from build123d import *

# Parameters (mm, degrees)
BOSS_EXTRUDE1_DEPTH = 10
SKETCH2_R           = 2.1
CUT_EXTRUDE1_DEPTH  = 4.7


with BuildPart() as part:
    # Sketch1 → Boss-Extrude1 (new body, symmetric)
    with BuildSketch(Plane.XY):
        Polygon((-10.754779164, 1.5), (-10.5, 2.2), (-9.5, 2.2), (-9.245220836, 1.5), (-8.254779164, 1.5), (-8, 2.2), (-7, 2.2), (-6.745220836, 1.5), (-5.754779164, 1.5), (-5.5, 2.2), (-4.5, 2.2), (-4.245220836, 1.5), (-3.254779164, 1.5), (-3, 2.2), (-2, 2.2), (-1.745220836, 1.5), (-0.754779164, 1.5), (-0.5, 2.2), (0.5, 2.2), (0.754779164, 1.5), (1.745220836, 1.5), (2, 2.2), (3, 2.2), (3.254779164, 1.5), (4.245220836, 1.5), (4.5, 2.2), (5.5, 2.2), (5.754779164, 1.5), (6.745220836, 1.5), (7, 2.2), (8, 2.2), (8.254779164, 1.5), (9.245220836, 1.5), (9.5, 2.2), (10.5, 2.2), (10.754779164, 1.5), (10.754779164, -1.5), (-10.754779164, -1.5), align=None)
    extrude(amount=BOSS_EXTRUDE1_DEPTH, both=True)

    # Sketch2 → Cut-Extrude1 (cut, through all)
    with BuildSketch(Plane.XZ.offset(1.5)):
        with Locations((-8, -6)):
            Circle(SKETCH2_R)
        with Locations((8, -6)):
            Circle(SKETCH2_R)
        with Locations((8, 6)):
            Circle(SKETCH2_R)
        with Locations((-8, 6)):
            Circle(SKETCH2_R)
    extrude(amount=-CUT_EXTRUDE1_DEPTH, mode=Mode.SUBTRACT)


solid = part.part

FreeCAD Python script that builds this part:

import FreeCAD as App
import Part
import Sketcher
Q = App.Units.Quantity

doc = App.newDocument("Part")
params = doc.addObject("Spreadsheet::Sheet", "Params")
for row, (alias, value) in enumerate([
    ("sketch1_width", "1 mm"),
    ("sketch1_height", "3 mm"),
    ("pad1_length", "20 mm"),
    ("sketch2_diameter", "4.2 mm"),
], start=1):
    params.set(f"A{row}", alias)
    params.set(f"B{row}", "=" + value)
    params.setAlias(f"B{row}", alias)

body = doc.addObject("PartDesign::Body", "Body")

sketch1 = doc.addObject("Sketcher::SketchObject", "Sketch")
body.addObject(sketch1)
sketch1.AttachmentSupport = (doc.XY_Plane, [""])
sketch1.MapMode = "FlatFace"
sketch1.addGeometry([
    Part.LineSegment(App.Vector(-10.5, 2.2, 0), App.Vector(-10.754779, 1.5, 0)),
    Part.LineSegment(App.Vector(-10.754779, 1.5, 0), App.Vector(-10.754779, -1.5, 0)),
    Part.LineSegment(App.Vector(-10.754779, -1.5, 0), App.Vector(10.754779, -1.5, 0)),
    Part.LineSegment(App.Vector(10.754779, -1.5, 0), App.Vector(10.754779, 1.5, 0)),
    Part.LineSegment(App.Vector(10.754779, 1.5, 0), App.Vector(10.5, 2.2, 0)),
    Part.LineSegment(App.Vector(10.5, 2.2, 0), App.Vector(9.5, 2.2, 0)),
    Part.LineSegment(App.Vector(9.5, 2.2, 0), App.Vector(9.245221, 1.5, 0)),
    Part.LineSegment(App.Vector(9.245221, 1.5, 0), App.Vector(8.254779, 1.5, 0)),
    Part.LineSegment(App.Vector(8.254779, 1.5, 0), App.Vector(8, 2.2, 0)),
    Part.LineSegment(App.Vector(8, 2.2, 0), App.Vector(7, 2.2, 0)),
    Part.LineSegment(App.Vector(7, 2.2, 0), App.Vector(6.745221, 1.5, 0)),
    Part.LineSegment(App.Vector(6.745221, 1.5, 0), App.Vector(5.754779, 1.5, 0)),
    Part.LineSegment(App.Vector(5.754779, 1.5, 0), App.Vector(5.5, 2.2, 0)),
    Part.LineSegment(App.Vector(5.5, 2.2, 0), App.Vector(4.5, 2.2, 0)),
    Part.LineSegment(App.Vector(4.5, 2.2, 0), App.Vector(4.245221, 1.5, 0)),
    Part.LineSegment(App.Vector(4.245221, 1.5, 0), App.Vector(3.254779, 1.5, 0)),
    Part.LineSegment(App.Vector(3.254779, 1.5, 0), App.Vector(3, 2.2, 0)),
    Part.LineSegment(App.Vector(3, 2.2, 0), App.Vector(2, 2.2, 0)),
    Part.LineSegment(App.Vector(2, 2.2, 0), App.Vector(1.745221, 1.5, 0)),
    Part.LineSegment(App.Vector(1.745221, 1.5, 0), App.Vector(0.754779, 1.5, 0)),
    Part.LineSegment(App.Vector(0.754779, 1.5, 0), App.Vector(0.5, 2.2, 0)),
    Part.LineSegment(App.Vector(0.5, 2.2, 0), App.Vector(-0.5, 2.2, 0)),
    Part.LineSegment(App.Vector(-0.5, 2.2, 0), App.Vector(-0.754779, 1.5, 0)),
    Part.LineSegment(App.Vector(-0.754779, 1.5, 0), App.Vector(-1.745221, 1.5, 0)),
    Part.LineSegment(App.Vector(-1.745221, 1.5, 0), App.Vector(-2, 2.2, 0)),
    Part.LineSegment(App.Vector(-2, 2.2, 0), App.Vector(-3, 2.2, 0)),
    Part.LineSegment(App.Vector(-3, 2.2, 0), App.Vector(-3.254779, 1.5, 0)),
    Part.LineSegment(App.Vector(-3.254779, 1.5, 0), App.Vector(-4.245221, 1.5, 0)),
    Part.LineSegment(App.Vector(-4.245221, 1.5, 0), App.Vector(-4.5, 2.2, 0)),
    Part.LineSegment(App.Vector(-4.5, 2.2, 0), App.Vector(-5.5, 2.2, 0)),
    Part.LineSegment(App.Vector(-5.5, 2.2, 0), App.Vector(-5.754779, 1.5, 0)),
    Part.LineSegment(App.Vector(-5.754779, 1.5, 0), App.Vector(-6.745221, 1.5, 0)),
    Part.LineSegment(App.Vector(-6.745221, 1.5, 0), App.Vector(-7, 2.2, 0)),
    Part.LineSegment(App.Vector(-7, 2.2, 0), App.Vector(-8, 2.2, 0)),
    Part.LineSegment(App.Vector(-8, 2.2, 0), App.Vector(-8.254779, 1.5, 0)),
    Part.LineSegment(App.Vector(-8.254779, 1.5, 0), App.Vector(-9.245221, 1.5, 0)),
    Part.LineSegment(App.Vector(-9.245221, 1.5, 0), App.Vector(-9.5, 2.2, 0)),
    Part.LineSegment(App.Vector(-9.5, 2.2, 0), App.Vector(-10.5, 2.2, 0)),
], False)
sketch1.addConstraint([
    Sketcher.Constraint("Coincident", 0, 2, 1, 1),
    Sketcher.Constraint("Coincident", 1, 2, 2, 1),
    Sketcher.Constraint("Coincident", 2, 2, 3, 1),
    Sketcher.Constraint("Coincident", 3, 2, 4, 1),
    Sketcher.Constraint("Coincident", 4, 2, 5, 1),
    Sketcher.Constraint("Coincident", 5, 2, 6, 1),
    Sketcher.Constraint("Coincident", 6, 2, 7, 1),
    Sketcher.Constraint("Coincident", 7, 2, 8, 1),
    Sketcher.Constraint("Coincident", 8, 2, 9, 1),
    Sketcher.Constraint("Coincident", 9, 2, 10, 1),
    Sketcher.Constraint("Coincident", 10, 2, 11, 1),
    Sketcher.Constraint("Coincident", 11, 2, 12, 1),
    Sketcher.Constraint("Coincident", 12, 2, 13, 1),
    Sketcher.Constraint("Coincident", 13, 2, 14, 1),
    Sketcher.Constraint("Coincident", 14, 2, 15, 1),
    Sketcher.Constraint("Coincident", 15, 2, 16, 1),
    Sketcher.Constraint("Coincident", 16, 2, 17, 1),
    Sketcher.Constraint("Coincident", 17, 2, 18, 1),
    Sketcher.Constraint("Coincident", 18, 2, 19, 1),
    Sketcher.Constraint("Coincident", 19, 2, 20, 1),
    Sketcher.Constraint("Coincident", 20, 2, 21, 1),
    Sketcher.Constraint("Coincident", 21, 2, 22, 1),
    Sketcher.Constraint("Coincident", 22, 2, 23, 1),
    Sketcher.Constraint("Coincident", 23, 2, 24, 1),
    Sketcher.Constraint("Coincident", 24, 2, 25, 1),
    Sketcher.Constraint("Coincident", 25, 2, 26, 1),
    Sketcher.Constraint("Coincident", 26, 2, 27, 1),
    Sketcher.Constraint("Coincident", 27, 2, 28, 1),
    Sketcher.Constraint("Coincident", 28, 2, 29, 1),
    Sketcher.Constraint("Coincident", 29, 2, 30, 1),
    Sketcher.Constraint("Coincident", 30, 2, 31, 1),
    Sketcher.Constraint("Coincident", 31, 2, 32, 1),
    Sketcher.Constraint("Coincident", 32, 2, 33, 1),
    Sketcher.Constraint("Coincident", 33, 2, 34, 1),
    Sketcher.Constraint("Coincident", 34, 2, 35, 1),
    Sketcher.Constraint("Coincident", 35, 2, 36, 1),
    Sketcher.Constraint("Coincident", 36, 2, 37, 1),
    Sketcher.Constraint("Coincident", 37, 2, 0, 1),
    Sketcher.Constraint("Vertical", 1),
    Sketcher.Constraint("Horizontal", 2),
    Sketcher.Constraint("Vertical", 3),
    Sketcher.Constraint("Horizontal", 5),
    Sketcher.Constraint("Horizontal", 7),
    Sketcher.Constraint("Horizontal", 9),
    Sketcher.Constraint("Horizontal", 11),
    Sketcher.Constraint("Horizontal", 13),
    Sketcher.Constraint("Horizontal", 15),
    Sketcher.Constraint("Horizontal", 17),
    Sketcher.Constraint("Horizontal", 19),
    Sketcher.Constraint("Horizontal", 21),
    Sketcher.Constraint("Horizontal", 23),
    Sketcher.Constraint("Horizontal", 25),
    Sketcher.Constraint("Horizontal", 27),
    Sketcher.Constraint("Horizontal", 29),
    Sketcher.Constraint("Horizontal", 31),
    Sketcher.Constraint("Horizontal", 33),
    Sketcher.Constraint("Horizontal", 35),
    Sketcher.Constraint("Horizontal", 37),
    Sketcher.Constraint("Symmetric", 0, 2, 2, 2, -1, 1),
    Sketcher.Constraint("Symmetric", 19, 2, 22, 2, -2),
    Sketcher.Constraint("Symmetric", 17, 2, 24, 2, -2),
    Sketcher.Constraint("Symmetric", 15, 2, 26, 2, -2),
    Sketcher.Constraint("Symmetric", 13, 2, 28, 2, -2),
    Sketcher.Constraint("Symmetric", 11, 2, 30, 2, -2),
    Sketcher.Constraint("Symmetric", 9, 2, 32, 2, -2),
    Sketcher.Constraint("Symmetric", 7, 2, 34, 2, -2),
    Sketcher.Constraint("Symmetric", 5, 2, 36, 2, -2),
    Sketcher.Constraint("Parallel", 0, 6),
    Sketcher.Constraint("Parallel", 4, 8),
    Sketcher.Constraint("Parallel", 6, 10),
    Sketcher.Constraint("Parallel", 8, 12),
    Sketcher.Constraint("Parallel", 10, 14),
    Sketcher.Constraint("Parallel", 12, 16),
    Sketcher.Constraint("Parallel", 14, 18),
    Sketcher.Constraint("Parallel", 16, 20),
    Sketcher.Constraint("Parallel", 18, 22),
    Sketcher.Constraint("Parallel", 20, 24),
    Sketcher.Constraint("Parallel", 22, 26),
    Sketcher.Constraint("Parallel", 24, 28),
    Sketcher.Constraint("Parallel", 26, 30),
    Sketcher.Constraint("Parallel", 28, 32),
    Sketcher.Constraint("Parallel", 30, 34),
    Sketcher.Constraint("Parallel", 32, 36),
    Sketcher.Constraint("Horizontal", 0, 2, 3, 2),
    Sketcher.Constraint("Horizontal", 3, 2, 6, 2),
    Sketcher.Constraint("Horizontal", 5, 2, 8, 2),
    Sketcher.Constraint("Horizontal", 7, 2, 10, 2),
    Sketcher.Constraint("Horizontal", 9, 2, 12, 2),
    Sketcher.Constraint("Horizontal", 11, 2, 14, 2),
    Sketcher.Constraint("Horizontal", 13, 2, 16, 2),
    Sketcher.Constraint("Horizontal", 15, 2, 18, 2),
    Sketcher.Constraint("Horizontal", 17, 2, 20, 2),
    Sketcher.Constraint("Equal", 5, 9),
    Sketcher.Constraint("Equal", 7, 11),
    Sketcher.Constraint("Equal", 9, 13),
    Sketcher.Constraint("Equal", 11, 15),
    Sketcher.Constraint("Equal", 13, 17),
    Sketcher.Constraint("Equal", 15, 19),
    Sketcher.Constraint("Equal", 17, 21),
    Sketcher.Constraint("Equal", 19, 23),
    Sketcher.Constraint("DistanceX", 5, 2, 5, 1, Q("1 mm")),
    Sketcher.Constraint("DistanceY", 1, 2, 1, 1, Q("3 mm")),
    Sketcher.Constraint("Angle", 0, Q("-110 deg")),
    Sketcher.Constraint("DistanceX", -1, 1, 8, 2, Q("8 mm")),
    Sketcher.Constraint("DistanceY", -1, 1, 4, 2, Q("2.2 mm")),
])
sketch1.setExpression("Constraints[100]", "Params.sketch1_width")
sketch1.setExpression("Constraints[101]", "Params.sketch1_height")
pad1 = doc.addObject("PartDesign::Pad", "Pad")
body.addObject(pad1)
pad1.Profile = sketch1
pad1.setExpression("Length", "Params.pad1_length")
pad1.Midplane = True

sketch2 = doc.addObject("Sketcher::SketchObject", "Sketch001")
body.addObject(sketch2)
sketch2.AttachmentSupport = (doc.XZ_Plane, [""])
sketch2.MapMode = "FlatFace"
sketch2.AttachmentOffset = App.Placement(App.Vector(0, 0, 1.5), App.Rotation())
sketch2.addGeometry([
    Part.Circle(App.Vector(-8, -6, 0), App.Vector(0, 0, 1), 2.1),
    Part.Circle(App.Vector(8, -6, 0), App.Vector(0, 0, 1), 2.1),
    Part.Circle(App.Vector(8, 6, 0), App.Vector(0, 0, 1), 2.1),
    Part.Circle(App.Vector(-8, 6, 0), App.Vector(0, 0, 1), 2.1),
], False)
sketch2.addConstraint([
    Sketcher.Constraint("Equal", 0, 1),
    Sketcher.Constraint("Equal", 1, 2),
    Sketcher.Constraint("Equal", 2, 3),
    Sketcher.Constraint("Symmetric", 0, 3, 2, 3, -1, 1),
    Sketcher.Constraint("Symmetric", 1, 3, 3, 3, -1, 1),
    Sketcher.Constraint("Symmetric", 0, 3, 1, 3, -2),
    Sketcher.Constraint("Diameter", 0, Q("4.2 mm")),
    Sketcher.Constraint("DistanceX", 0, 3, -1, 1, Q("8 mm")),
    Sketcher.Constraint("DistanceY", 0, 3, -1, 1, Q("6 mm")),
])
sketch2.setExpression("Constraints[6]", "Params.sketch2_diameter")
pocket1 = doc.addObject("PartDesign::Pocket", "Pocket")
body.addObject(pocket1)
pocket1.Profile = sketch2
pocket1.Type = "ThroughAll"

doc.recompute()
